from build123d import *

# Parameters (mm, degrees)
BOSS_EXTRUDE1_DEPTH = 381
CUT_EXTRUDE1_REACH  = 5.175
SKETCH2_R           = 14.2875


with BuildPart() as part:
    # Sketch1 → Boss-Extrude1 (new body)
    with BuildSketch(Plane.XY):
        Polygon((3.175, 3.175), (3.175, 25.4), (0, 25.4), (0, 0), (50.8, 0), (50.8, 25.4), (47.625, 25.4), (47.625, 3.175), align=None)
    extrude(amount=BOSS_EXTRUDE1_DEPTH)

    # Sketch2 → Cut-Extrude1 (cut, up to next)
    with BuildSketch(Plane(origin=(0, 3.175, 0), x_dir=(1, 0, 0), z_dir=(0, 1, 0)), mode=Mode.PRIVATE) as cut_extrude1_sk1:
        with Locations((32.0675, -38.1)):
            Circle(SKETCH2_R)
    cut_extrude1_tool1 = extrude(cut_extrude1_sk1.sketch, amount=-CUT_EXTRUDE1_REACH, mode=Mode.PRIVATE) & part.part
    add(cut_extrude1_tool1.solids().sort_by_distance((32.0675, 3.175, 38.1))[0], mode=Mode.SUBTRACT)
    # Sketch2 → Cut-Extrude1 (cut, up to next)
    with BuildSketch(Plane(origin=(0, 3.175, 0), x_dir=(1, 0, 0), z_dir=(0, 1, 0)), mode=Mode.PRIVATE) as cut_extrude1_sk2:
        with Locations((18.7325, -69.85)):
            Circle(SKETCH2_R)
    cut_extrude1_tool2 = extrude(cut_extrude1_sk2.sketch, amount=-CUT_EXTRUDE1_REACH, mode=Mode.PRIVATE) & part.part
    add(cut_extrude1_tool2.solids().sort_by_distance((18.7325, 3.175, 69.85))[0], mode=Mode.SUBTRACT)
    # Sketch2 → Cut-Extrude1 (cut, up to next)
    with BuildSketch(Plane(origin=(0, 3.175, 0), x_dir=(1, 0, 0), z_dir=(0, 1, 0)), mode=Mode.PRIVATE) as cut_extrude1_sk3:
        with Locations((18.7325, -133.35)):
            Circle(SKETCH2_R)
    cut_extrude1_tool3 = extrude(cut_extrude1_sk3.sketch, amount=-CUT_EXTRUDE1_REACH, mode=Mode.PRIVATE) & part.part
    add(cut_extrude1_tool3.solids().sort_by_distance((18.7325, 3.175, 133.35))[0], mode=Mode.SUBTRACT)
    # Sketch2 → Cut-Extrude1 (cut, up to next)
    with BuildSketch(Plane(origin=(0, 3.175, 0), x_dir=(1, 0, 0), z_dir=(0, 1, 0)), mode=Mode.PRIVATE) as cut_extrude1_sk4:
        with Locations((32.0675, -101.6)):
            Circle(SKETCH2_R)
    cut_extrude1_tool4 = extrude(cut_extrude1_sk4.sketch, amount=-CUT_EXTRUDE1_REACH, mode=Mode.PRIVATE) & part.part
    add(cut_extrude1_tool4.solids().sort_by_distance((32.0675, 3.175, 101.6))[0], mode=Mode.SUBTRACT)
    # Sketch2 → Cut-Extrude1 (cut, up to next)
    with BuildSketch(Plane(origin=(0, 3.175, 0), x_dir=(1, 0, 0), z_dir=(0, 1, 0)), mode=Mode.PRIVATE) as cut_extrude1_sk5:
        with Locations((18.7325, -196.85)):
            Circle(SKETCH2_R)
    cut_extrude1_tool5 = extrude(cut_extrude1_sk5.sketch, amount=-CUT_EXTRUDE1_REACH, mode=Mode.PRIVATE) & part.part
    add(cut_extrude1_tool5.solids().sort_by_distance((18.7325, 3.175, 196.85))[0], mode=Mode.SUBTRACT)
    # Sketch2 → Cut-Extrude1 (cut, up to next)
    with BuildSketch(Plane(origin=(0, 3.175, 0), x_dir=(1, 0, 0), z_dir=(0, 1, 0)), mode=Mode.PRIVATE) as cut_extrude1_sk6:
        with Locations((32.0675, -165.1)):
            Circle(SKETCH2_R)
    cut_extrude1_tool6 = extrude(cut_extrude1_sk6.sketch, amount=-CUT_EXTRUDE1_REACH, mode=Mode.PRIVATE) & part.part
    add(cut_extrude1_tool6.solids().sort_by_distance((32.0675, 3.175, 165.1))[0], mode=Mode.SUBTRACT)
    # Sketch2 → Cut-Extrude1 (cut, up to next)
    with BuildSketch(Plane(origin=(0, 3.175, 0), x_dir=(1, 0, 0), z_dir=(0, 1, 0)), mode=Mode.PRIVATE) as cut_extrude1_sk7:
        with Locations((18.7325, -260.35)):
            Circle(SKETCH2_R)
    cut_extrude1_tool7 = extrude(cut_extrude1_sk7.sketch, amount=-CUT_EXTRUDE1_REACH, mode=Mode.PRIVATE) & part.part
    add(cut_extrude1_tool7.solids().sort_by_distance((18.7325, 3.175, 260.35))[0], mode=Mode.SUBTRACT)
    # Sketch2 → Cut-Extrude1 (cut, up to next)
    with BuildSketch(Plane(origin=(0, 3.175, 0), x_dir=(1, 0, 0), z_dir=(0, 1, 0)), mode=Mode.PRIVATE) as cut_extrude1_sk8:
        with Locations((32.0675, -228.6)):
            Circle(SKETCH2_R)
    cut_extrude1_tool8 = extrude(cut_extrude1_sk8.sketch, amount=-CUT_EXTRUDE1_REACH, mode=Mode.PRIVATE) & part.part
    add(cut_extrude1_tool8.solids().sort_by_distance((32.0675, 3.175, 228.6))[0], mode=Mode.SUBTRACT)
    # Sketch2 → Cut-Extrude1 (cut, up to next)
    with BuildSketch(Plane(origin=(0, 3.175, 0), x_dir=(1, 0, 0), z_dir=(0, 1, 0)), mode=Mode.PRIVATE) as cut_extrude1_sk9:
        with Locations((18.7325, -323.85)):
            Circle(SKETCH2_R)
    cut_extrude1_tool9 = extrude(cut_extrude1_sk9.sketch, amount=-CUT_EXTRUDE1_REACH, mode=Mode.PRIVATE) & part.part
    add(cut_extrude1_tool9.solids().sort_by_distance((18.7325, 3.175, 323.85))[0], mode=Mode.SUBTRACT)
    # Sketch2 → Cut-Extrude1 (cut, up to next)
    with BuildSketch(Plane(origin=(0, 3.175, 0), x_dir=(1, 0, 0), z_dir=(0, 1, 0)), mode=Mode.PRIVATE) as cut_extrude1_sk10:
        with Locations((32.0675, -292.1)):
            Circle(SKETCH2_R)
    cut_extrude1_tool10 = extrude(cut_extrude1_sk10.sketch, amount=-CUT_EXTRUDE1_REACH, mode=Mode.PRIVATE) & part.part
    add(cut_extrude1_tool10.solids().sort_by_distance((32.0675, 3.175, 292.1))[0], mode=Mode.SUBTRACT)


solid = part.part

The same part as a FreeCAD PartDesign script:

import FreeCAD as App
import Part
import Sketcher
from FreeCAD import Vector
Q = App.Units.Quantity

doc = App.newDocument("Part")
body = doc.addObject("PartDesign::Body", "Body")

# Sketch on XY plane
sketch1 = doc.addObject("Sketcher::SketchObject", "Sketch")
body.addObject(sketch1)
sketch1.AttachmentSupport = (doc.XY_Plane, [""])
sketch1.MapMode = "FlatFace"
sketch1.addGeometry([
    Part.LineSegment(Vector(3.2, 3.2, 0), Vector(3.2, 25.4, 0)),  # 0
    Part.LineSegment(Vector(3.2, 25.4, 0), Vector(0, 25.4, 0)),  # 1
    Part.LineSegment(Vector(0, 25.4, 0), Vector(0, 0, 0)),  # 2
    Part.LineSegment(Vector(0, 0, 0), Vector(50.8, 0, 0)),  # 3
    Part.LineSegment(Vector(50.8, 0, 0), Vector(50.8, 25.4, 0)),  # 4
    Part.LineSegment(Vector(50.8, 25.4, 0), Vector(47.6, 25.4, 0)),  # 5
    Part.LineSegment(Vector(47.6, 25.4, 0), Vector(47.6, 3.2, 0)),  # 6
    Part.LineSegment(Vector(47.6, 3.2, 0), Vector(3.2, 3.2, 0)),  # 7
], False)
sketch1.addConstraint([
    Sketcher.Constraint("Coincident", 0, 2, 1, 1),
    Sketcher.Constraint("Coincident", 1, 2, 2, 1),
    Sketcher.Constraint("Coincident", 2, 2, 3, 1),
    Sketcher.Constraint("Coincident", 3, 2, 4, 1),
    Sketcher.Constraint("Coincident", 4, 2, 5, 1),
    Sketcher.Constraint("Coincident", 5, 2, 6, 1),
    Sketcher.Constraint("Coincident", 6, 2, 7, 1),
    Sketcher.Constraint("Coincident", 7, 2, 0, 1),
    Sketcher.Constraint("Vertical", 0),
    Sketcher.Constraint("Horizontal", 1),
    Sketcher.Constraint("Vertical", 2),
    Sketcher.Constraint("Horizontal", 3),
    Sketcher.Constraint("Vertical", 4),
    Sketcher.Constraint("Horizontal", 5),
    Sketcher.Constraint("Vertical", 6),
    Sketcher.Constraint("Horizontal", 7),
    Sketcher.Constraint("Coincident", 2, 2, -1, 1),
    Sketcher.Constraint("Horizontal", 1, 2, 4, 2),
    Sketcher.Constraint("Equal", 1, 5),
    Sketcher.Constraint("DistanceX", 3, 1, 3, 2, Q("2 in")),
    Sketcher.Constraint("DistanceY", 2, 2, 2, 1, Q("1 in")),
    Sketcher.Constraint("DistanceX", 7, 2, 7, 1, Q("1.75 in")),
    Sketcher.Constraint("DistanceY", 0, 1, 0, 2, Q("0.875 in")),
])
pad1 = doc.addObject("PartDesign::Pad", "Pad")
body.addObject(pad1)
pad1.Profile = sketch1
pad1.Length = Q("15 in")

# Sketch on XZ plane
sketch2 = doc.addObject("Sketcher::SketchObject", "Sketch001")
body.addObject(sketch2)
sketch2.AttachmentSupport = (doc.XZ_Plane, [""])
sketch2.MapMode = "FlatFace"
sketch2.AttachmentOffset = App.Placement(Vector(0, 0, -0.125 * 25.4), App.Rotation())
sketch2.addGeometry(Part.Circle(Vector(32, 38, 0), Vector(0, 0, 1), 14), False)
sketch2.addConstraint([
    Sketcher.Constraint("Diameter", 0, Q("1.125 in")),
    Sketcher.Constraint("DistanceY", -1, 1, 0, 3, Q("1.5 in")),
    Sketcher.Constraint("DistanceX", -1, 1, 0, 3, Q("1.2625 in")),
])
pocket1 = doc.addObject("PartDesign::Pocket", "Pocket")
body.addObject(pocket1)
pocket1.Profile = sketch2
pocket1.Type = "UpToFirst"
pocket1.Reversed = True

# Sketch on XZ plane
sketch3 = doc.addObject("Sketcher::SketchObject", "Sketch002")
body.addObject(sketch3)
sketch3.AttachmentSupport = (doc.XZ_Plane, [""])
sketch3.MapMode = "FlatFace"
sketch3.AttachmentOffset = App.Placement(Vector(0, 0, -0.125 * 25.4), App.Rotation())
sketch3.addGeometry(Part.Circle(Vector(19, 70, 0), Vector(0, 0, 1), 14), False)
sketch3.addConstraint([
    Sketcher.Constraint("Diameter", 0, Q("1.125 in")),
    Sketcher.Constraint("DistanceY", -1, 1, 0, 3, Q("2.75 in")),
    Sketcher.Constraint("DistanceX", -1, 1, 0, 3, Q("0.7375 in")),
])
pocket2 = doc.addObject("PartDesign::Pocket", "Pocket001")
body.addObject(pocket2)
pocket2.Profile = sketch3
pocket2.Type = "UpToFirst"
pocket2.Reversed = True

# Sketch on XZ plane
sketch4 = doc.addObject("Sketcher::SketchObject", "Sketch003")
body.addObject(sketch4)
sketch4.AttachmentSupport = (doc.XZ_Plane, [""])
sketch4.MapMode = "FlatFace"
sketch4.AttachmentOffset = App.Placement(Vector(0, 0, -0.125 * 25.4), App.Rotation())
sketch4.addGeometry(Part.Circle(Vector(19, 133, 0), Vector(0, 0, 1), 14), False)
sketch4.addConstraint([
    Sketcher.Constraint("Diameter", 0, Q("1.125 in")),
    Sketcher.Constraint("DistanceY", -1, 1, 0, 3, Q("5.25 in")),
    Sketcher.Constraint("DistanceX", -1, 1, 0, 3, Q("0.7375 in")),
])
pocket3 = doc.addObject("PartDesign::Pocket", "Pocket002")
body.addObject(pocket3)
pocket3.Profile = sketch4
pocket3.Type = "UpToFirst"
pocket3.Reversed = True

# Sketch on XZ plane
sketch5 = doc.addObject("Sketcher::SketchObject", "Sketch004")
body.addObject(sketch5)
sketch5.AttachmentSupport = (doc.XZ_Plane, [""])
sketch5.MapMode = "FlatFace"
sketch5.AttachmentOffset = App.Placement(Vector(0, 0, -0.125 * 25.4), App.Rotation())
sketch5.addGeometry(Part.Circle(Vector(32, 102, 0), Vector(0, 0, 1), 14), False)
sketch5.addConstraint([
    Sketcher.Constraint("Diameter", 0, Q("1.125 in")),
    Sketcher.Constraint("DistanceY", -1, 1, 0, 3, Q("4 in")),
    Sketcher.Constraint("DistanceX", -1, 1, 0, 3, Q("1.2625 in")),
])
pocket4 = doc.addObject("PartDesign::Pocket", "Pocket003")
body.addObject(pocket4)
pocket4.Profile = sketch5
pocket4.Type = "UpToFirst"
pocket4.Reversed = True

# Sketch on XZ plane
sketch6 = doc.addObject("Sketcher::SketchObject", "Sketch005")
body.addObject(sketch6)
sketch6.AttachmentSupport = (doc.XZ_Plane, [""])
sketch6.MapMode = "FlatFace"
sketch6.AttachmentOffset = App.Placement(Vector(0, 0, -0.125 * 25.4), App.Rotation())
sketch6.addGeometry(Part.Circle(Vector(19, 197, 0), Vector(0, 0, 1), 14), False)
sketch6.addConstraint([
    Sketcher.Constraint("Diameter", 0, Q("1.125 in")),
    Sketcher.Constraint("DistanceY", -1, 1, 0, 3, Q("7.75 in")),
    Sketcher.Constraint("DistanceX", -1, 1, 0, 3, Q("0.7375 in")),
])
pocket5 = doc.addObject("PartDesign::Pocket", "Pocket004")
body.addObject(pocket5)
pocket5.Profile = sketch6
pocket5.Type = "UpToFirst"
pocket5.Reversed = True

# Sketch on XZ plane
sketch7 = doc.addObject("Sketcher::SketchObject", "Sketch006")
body.addObject(sketch7)
sketch7.AttachmentSupport = (doc.XZ_Plane, [""])
sketch7.MapMode = "FlatFace"
sketch7.AttachmentOffset = App.Placement(Vector(0, 0, -0.125 * 25.4), App.Rotation())
sketch7.addGeometry(Part.Circle(Vector(32, 165, 0), Vector(0, 0, 1), 14), False)
sketch7.addConstraint([
    Sketcher.Constraint("Diameter", 0, Q("1.125 in")),
    Sketcher.Constraint("DistanceY", -1, 1, 0, 3, Q("6.5 in")),
    Sketcher.Constraint("DistanceX", -1, 1, 0, 3, Q("1.2625 in")),
])
pocket6 = doc.addObject("PartDesign::Pocket", "Pocket005")
body.addObject(pocket6)
pocket6.Profile = sketch7
pocket6.Type = "UpToFirst"
pocket6.Reversed = True

# Sketch on XZ plane
sketch8 = doc.addObject("Sketcher::SketchObject", "Sketch007")
body.addObject(sketch8)
sketch8.AttachmentSupport = (doc.XZ_Plane, [""])
sketch8.MapMode = "FlatFace"
sketch8.AttachmentOffset = App.Placement(Vector(0, 0, -0.125 * 25.4), App.Rotation())
sketch8.addGeometry(Part.Circle(Vector(19, 260, 0), Vector(0, 0, 1), 14), False)
sketch8.addConstraint([
    Sketcher.Constraint("Diameter", 0, Q("1.125 in")),
    Sketcher.Constraint("DistanceY", -1, 1, 0, 3, Q("10.25 in")),
    Sketcher.Constraint("DistanceX", -1, 1, 0, 3, Q("0.7375 in")),
])
pocket7 = doc.addObject("PartDesign::Pocket", "Pocket006")
body.addObject(pocket7)
pocket7.Profile = sketch8
pocket7.Type = "UpToFirst"
pocket7.Reversed = True

# Sketch on XZ plane
sketch9 = doc.addObject("Sketcher::SketchObject", "Sketch008")
body.addObject(sketch9)
sketch9.AttachmentSupport = (doc.XZ_Plane, [""])
sketch9.MapMode = "FlatFace"
sketch9.AttachmentOffset = App.Placement(Vector(0, 0, -0.125 * 25.4), App.Rotation())
sketch9.addGeometry(Part.Circle(Vector(32, 229, 0), Vector(0, 0, 1), 14), False)
sketch9.addConstraint([
    Sketcher.Constraint("Diameter", 0, Q("1.125 in")),
    Sketcher.Constraint("DistanceY", -1, 1, 0, 3, Q("9 in")),
    Sketcher.Constraint("DistanceX", -1, 1, 0, 3, Q("1.2625 in")),
])
pocket8 = doc.addObject("PartDesign::Pocket", "Pocket007")
body.addObject(pocket8)
pocket8.Profile = sketch9
pocket8.Type = "UpToFirst"
pocket8.Reversed = True

# Sketch on XZ plane
sketch10 = doc.addObject("Sketcher::SketchObject", "Sketch009")
body.addObject(sketch10)
sketch10.AttachmentSupport = (doc.XZ_Plane, [""])
sketch10.MapMode = "FlatFace"
sketch10.AttachmentOffset = App.Placement(Vector(0, 0, -0.125 * 25.4), App.Rotation())
sketch10.addGeometry(Part.Circle(Vector(19, 324, 0), Vector(0, 0, 1), 14), False)
sketch10.addConstraint([
    Sketcher.Constraint("Diameter", 0, Q("1.125 in")),
    Sketcher.Constraint("DistanceY", -1, 1, 0, 3, Q("12.75 in")),
    Sketcher.Constraint("DistanceX", -1, 1, 0, 3, Q("0.7375 in")),
])
pocket9 = doc.addObject("PartDesign::Pocket", "Pocket008")
body.addObject(pocket9)
pocket9.Profile = sketch10
pocket9.Type = "UpToFirst"
pocket9.Reversed = True

# Sketch on XZ plane
sketch11 = doc.addObject("Sketcher::SketchObject", "Sketch010")
body.addObject(sketch11)
sketch11.AttachmentSupport = (doc.XZ_Plane, [""])
sketch11.MapMode = "FlatFace"
sketch11.AttachmentOffset = App.Placement(Vector(0, 0, -0.125 * 25.4), App.Rotation())
sketch11.addGeometry(Part.Circle(Vector(32, 292, 0), Vector(0, 0, 1), 14), False)
sketch11.addConstraint([
    Sketcher.Constraint("Diameter", 0, Q("1.125 in")),
    Sketcher.Constraint("DistanceY", -1, 1, 0, 3, Q("11.5 in")),
    Sketcher.Constraint("DistanceX", -1, 1, 0, 3, Q("1.2625 in")),
])
pocket10 = doc.addObject("PartDesign::Pocket", "Pocket009")
body.addObject(pocket10)
pocket10.Profile = sketch11
pocket10.Type = "UpToFirst"
pocket10.Reversed = True

doc.recompute()
